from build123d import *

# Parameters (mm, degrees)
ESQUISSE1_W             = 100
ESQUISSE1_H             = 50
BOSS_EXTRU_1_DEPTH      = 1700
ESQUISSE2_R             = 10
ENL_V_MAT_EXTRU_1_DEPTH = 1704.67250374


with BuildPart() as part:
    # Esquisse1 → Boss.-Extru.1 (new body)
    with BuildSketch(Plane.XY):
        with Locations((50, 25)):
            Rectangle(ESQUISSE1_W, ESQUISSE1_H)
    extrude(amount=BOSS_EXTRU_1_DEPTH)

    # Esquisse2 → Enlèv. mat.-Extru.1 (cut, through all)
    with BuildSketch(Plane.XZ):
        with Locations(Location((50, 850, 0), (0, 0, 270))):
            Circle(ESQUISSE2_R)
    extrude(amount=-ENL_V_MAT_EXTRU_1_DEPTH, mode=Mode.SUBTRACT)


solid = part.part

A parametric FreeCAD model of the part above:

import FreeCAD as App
import Part
import Sketcher
Q = App.Units.Quantity


def add_polygon(sketch, points):
    """Adds a closed chain of lines whose ends are joined by coincident constraints."""
    first, n = sketch.GeometryCount, len(points)
    for a, b in zip(points, points[1:] + points[:1]):
        sketch.addGeometry(Part.LineSegment(App.Vector(*a, 0), App.Vector(*b, 0)), False)
    for i in range(n):
        sketch.addConstraint(Sketcher.Constraint("Coincident", first + i, 2, first + (i + 1) % n, 1))

doc = App.newDocument("Part")
body = doc.addObject("PartDesign::Body", "Body")

sketch1 = body.newObject("Sketcher::SketchObject", "Sketch")
sketch1.AttachmentSupport = (doc.getObject("XY_Plane"), [""])
sketch1.MapMode = "FlatFace"
add_polygon(sketch1, [(0, 50), (0, 0), (100, 0), (100, 50)])
sketch1.addConstraint([
    Sketcher.Constraint("Vertical", 0),
    Sketcher.Constraint("Horizontal", 1),
    Sketcher.Constraint("Vertical", 2),
    Sketcher.Constraint("Horizontal", 3),
    Sketcher.Constraint("Coincident", 0, 2, -1, 1),
    Sketcher.Constraint("DistanceX", 1, 1, 1, 2, Q("100 mm")),
    Sketcher.Constraint("DistanceY", 0, 2, 0, 1, Q("50 mm")),
])
pad1 = body.newObject("PartDesign::Pad", "Pad")
pad1.Profile = sketch1
pad1.Length = 1700

sketch2 = body.newObject("Sketcher::SketchObject", "Sketch001")
sketch2.AttachmentSupport = (doc.getObject("XZ_Plane"), [""])
sketch2.MapMode = "FlatFace"
sketch2.addGeometry(Part.Circle(App.Vector(50, 850, 0), App.Vector(0, 0, 1), 10), False)
sketch2.addConstraint([
    Sketcher.Constraint("Diameter", 0, Q("20 mm")),
    Sketcher.Constraint("DistanceX", -1, 1, 0, 3, Q("50 mm")),
    Sketcher.Constraint("DistanceY", -1, 1, 0, 3, Q("850 mm")),
])
pocket1 = body.newObject("PartDesign::Pocket", "Pocket")
pocket1.Profile = sketch2
pocket1.Type = "ThroughAll"

doc.recompute()
